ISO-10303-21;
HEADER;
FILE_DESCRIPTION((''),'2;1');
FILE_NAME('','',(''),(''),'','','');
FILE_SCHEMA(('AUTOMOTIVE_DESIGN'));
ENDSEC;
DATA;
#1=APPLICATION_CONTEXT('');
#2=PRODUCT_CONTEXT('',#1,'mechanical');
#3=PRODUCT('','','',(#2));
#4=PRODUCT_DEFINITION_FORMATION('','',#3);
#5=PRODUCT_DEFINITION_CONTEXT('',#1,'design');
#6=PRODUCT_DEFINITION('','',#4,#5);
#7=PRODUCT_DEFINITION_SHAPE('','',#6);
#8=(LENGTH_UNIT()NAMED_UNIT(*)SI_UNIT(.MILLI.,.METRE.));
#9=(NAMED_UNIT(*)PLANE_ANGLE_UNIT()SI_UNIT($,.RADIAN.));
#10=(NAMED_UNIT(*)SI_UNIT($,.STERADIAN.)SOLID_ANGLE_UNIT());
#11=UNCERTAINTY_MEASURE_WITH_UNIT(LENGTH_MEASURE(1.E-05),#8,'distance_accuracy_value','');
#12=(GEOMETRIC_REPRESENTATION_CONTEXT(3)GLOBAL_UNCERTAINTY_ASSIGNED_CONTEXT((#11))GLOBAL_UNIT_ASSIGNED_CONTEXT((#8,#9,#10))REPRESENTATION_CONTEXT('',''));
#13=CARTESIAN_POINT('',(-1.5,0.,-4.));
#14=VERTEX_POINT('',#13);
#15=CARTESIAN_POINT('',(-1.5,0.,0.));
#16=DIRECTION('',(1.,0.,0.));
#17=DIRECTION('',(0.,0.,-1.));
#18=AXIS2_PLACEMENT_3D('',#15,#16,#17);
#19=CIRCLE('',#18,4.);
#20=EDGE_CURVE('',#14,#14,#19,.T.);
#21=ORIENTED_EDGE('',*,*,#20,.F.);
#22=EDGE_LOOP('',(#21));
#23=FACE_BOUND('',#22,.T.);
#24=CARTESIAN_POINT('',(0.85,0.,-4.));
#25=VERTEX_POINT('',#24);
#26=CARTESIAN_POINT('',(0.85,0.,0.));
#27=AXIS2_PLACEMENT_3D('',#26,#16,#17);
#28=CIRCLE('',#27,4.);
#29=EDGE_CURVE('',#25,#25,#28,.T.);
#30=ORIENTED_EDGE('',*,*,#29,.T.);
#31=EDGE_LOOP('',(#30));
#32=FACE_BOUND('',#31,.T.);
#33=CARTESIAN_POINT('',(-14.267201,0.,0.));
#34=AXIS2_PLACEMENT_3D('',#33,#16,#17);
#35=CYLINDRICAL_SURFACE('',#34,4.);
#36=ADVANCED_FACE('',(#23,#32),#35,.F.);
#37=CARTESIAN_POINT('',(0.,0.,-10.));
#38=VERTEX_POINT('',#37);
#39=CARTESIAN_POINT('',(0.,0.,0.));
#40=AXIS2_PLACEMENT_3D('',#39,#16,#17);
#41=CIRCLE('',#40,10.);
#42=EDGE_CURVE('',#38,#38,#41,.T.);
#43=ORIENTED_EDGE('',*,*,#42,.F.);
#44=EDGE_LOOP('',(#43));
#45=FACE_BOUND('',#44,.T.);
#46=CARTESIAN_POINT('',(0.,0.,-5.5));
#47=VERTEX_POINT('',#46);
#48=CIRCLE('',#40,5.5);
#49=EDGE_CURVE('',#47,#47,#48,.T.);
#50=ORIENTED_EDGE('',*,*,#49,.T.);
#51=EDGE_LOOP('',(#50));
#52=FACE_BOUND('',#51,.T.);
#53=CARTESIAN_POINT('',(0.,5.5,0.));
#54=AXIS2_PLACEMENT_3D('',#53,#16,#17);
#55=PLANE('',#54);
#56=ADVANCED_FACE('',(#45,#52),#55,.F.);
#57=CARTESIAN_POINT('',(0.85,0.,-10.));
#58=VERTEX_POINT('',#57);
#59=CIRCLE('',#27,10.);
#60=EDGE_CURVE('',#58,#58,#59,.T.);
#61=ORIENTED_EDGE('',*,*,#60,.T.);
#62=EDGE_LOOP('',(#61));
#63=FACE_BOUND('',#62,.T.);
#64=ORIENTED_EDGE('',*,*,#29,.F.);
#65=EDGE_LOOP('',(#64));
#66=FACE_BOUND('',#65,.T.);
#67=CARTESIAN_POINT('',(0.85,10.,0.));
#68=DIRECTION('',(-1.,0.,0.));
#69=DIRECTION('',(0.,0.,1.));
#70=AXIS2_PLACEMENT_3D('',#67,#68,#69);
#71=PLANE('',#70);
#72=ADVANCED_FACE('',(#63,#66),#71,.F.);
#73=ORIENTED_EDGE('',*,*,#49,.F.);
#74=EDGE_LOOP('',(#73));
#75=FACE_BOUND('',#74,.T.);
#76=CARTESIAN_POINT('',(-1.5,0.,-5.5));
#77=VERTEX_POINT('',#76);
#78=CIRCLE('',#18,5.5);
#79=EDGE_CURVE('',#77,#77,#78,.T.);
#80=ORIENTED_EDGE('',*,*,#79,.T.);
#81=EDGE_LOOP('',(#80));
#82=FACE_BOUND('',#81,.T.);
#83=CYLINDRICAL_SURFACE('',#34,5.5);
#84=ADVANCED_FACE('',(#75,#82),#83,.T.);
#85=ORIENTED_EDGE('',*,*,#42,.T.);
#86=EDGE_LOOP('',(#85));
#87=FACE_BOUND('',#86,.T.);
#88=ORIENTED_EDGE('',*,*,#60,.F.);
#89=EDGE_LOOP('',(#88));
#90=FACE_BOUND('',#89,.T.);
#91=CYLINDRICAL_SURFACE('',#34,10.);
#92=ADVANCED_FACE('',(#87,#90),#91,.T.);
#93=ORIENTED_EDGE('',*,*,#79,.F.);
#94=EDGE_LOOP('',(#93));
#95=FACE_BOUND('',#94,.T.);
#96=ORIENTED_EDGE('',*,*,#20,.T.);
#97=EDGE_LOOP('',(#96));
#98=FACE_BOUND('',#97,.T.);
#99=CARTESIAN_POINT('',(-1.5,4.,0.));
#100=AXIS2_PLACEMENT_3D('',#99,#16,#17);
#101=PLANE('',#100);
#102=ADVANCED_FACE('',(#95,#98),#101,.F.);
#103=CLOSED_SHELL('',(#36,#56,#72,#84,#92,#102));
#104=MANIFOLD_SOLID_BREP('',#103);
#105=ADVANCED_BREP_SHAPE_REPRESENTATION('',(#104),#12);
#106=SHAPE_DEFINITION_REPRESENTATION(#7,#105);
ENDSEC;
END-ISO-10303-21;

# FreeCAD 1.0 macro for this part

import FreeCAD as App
import Part
import Sketcher
Q = App.Units.Quantity


def add_polygon(sketch, points):
    """Adds a closed chain of lines whose ends are joined by coincident constraints."""
    first, n = sketch.GeometryCount, len(points)
    for a, b in zip(points, points[1:] + points[:1]):
        sketch.addGeometry(Part.LineSegment(App.Vector(*a, 0), App.Vector(*b, 0)), False)
    for i in range(n):
        sketch.addConstraint(Sketcher.Constraint("Coincident", first + i, 2, first + (i + 1) % n, 1))

doc = App.newDocument("Part")
body = doc.addObject("PartDesign::Body", "Body")

sketch1 = doc.addObject("Sketcher::SketchObject", "Sketch")
body.addObject(sketch1)
sketch1.AttachmentSupport = (doc.XY_Plane, [""])
sketch1.MapMode = "FlatFace"
add_polygon(sketch1, [(-1.5, 5.5), (-1.5, 4), (0.8, 4), (0.8, 10), (0, 10), (0, 5.5)])
sketch1.addConstraint(Sketcher.Constraint("Vertical", 0))
sketch1.addConstraint(Sketcher.Constraint("Horizontal", 1))
sketch1.addConstraint(Sketcher.Constraint("Vertical", 2))
sketch1.addConstraint(Sketcher.Constraint("Horizontal", 3))
sketch1.addConstraint(Sketcher.Constraint("Vertical", 4))
sketch1.addConstraint(Sketcher.Constraint("Horizontal", 5))
sketch1.addConstraint(Sketcher.Constraint("PointOnObject", 3, 2, -2))
sketch1.addConstraint(Sketcher.Constraint("Equal", 5, 0))
sketch1.addConstraint(Sketcher.Constraint("DistanceY", 2, 1, 2, 2, Q("6 mm")))
sketch1.addConstraint(Sketcher.Constraint("DistanceX", 5, 2, 5, 1, Q("1.5 mm")))
sketch1.addConstraint(Sketcher.Constraint("DistanceY", -1, 1, 0, 2, Q("4 mm")))
sketch1.addConstraint(Sketcher.Constraint("DistanceX", 1, 1, 1, 2, Q("2.35 mm")))
revolution = doc.addObject("PartDesign::Revolution", "Revolution")
body.addObject(revolution)
revolution.Profile = sketch1
revolution.ReferenceAxis = (sketch1, ["H_Axis"])
revolution.Angle = 360

doc.recompute()
